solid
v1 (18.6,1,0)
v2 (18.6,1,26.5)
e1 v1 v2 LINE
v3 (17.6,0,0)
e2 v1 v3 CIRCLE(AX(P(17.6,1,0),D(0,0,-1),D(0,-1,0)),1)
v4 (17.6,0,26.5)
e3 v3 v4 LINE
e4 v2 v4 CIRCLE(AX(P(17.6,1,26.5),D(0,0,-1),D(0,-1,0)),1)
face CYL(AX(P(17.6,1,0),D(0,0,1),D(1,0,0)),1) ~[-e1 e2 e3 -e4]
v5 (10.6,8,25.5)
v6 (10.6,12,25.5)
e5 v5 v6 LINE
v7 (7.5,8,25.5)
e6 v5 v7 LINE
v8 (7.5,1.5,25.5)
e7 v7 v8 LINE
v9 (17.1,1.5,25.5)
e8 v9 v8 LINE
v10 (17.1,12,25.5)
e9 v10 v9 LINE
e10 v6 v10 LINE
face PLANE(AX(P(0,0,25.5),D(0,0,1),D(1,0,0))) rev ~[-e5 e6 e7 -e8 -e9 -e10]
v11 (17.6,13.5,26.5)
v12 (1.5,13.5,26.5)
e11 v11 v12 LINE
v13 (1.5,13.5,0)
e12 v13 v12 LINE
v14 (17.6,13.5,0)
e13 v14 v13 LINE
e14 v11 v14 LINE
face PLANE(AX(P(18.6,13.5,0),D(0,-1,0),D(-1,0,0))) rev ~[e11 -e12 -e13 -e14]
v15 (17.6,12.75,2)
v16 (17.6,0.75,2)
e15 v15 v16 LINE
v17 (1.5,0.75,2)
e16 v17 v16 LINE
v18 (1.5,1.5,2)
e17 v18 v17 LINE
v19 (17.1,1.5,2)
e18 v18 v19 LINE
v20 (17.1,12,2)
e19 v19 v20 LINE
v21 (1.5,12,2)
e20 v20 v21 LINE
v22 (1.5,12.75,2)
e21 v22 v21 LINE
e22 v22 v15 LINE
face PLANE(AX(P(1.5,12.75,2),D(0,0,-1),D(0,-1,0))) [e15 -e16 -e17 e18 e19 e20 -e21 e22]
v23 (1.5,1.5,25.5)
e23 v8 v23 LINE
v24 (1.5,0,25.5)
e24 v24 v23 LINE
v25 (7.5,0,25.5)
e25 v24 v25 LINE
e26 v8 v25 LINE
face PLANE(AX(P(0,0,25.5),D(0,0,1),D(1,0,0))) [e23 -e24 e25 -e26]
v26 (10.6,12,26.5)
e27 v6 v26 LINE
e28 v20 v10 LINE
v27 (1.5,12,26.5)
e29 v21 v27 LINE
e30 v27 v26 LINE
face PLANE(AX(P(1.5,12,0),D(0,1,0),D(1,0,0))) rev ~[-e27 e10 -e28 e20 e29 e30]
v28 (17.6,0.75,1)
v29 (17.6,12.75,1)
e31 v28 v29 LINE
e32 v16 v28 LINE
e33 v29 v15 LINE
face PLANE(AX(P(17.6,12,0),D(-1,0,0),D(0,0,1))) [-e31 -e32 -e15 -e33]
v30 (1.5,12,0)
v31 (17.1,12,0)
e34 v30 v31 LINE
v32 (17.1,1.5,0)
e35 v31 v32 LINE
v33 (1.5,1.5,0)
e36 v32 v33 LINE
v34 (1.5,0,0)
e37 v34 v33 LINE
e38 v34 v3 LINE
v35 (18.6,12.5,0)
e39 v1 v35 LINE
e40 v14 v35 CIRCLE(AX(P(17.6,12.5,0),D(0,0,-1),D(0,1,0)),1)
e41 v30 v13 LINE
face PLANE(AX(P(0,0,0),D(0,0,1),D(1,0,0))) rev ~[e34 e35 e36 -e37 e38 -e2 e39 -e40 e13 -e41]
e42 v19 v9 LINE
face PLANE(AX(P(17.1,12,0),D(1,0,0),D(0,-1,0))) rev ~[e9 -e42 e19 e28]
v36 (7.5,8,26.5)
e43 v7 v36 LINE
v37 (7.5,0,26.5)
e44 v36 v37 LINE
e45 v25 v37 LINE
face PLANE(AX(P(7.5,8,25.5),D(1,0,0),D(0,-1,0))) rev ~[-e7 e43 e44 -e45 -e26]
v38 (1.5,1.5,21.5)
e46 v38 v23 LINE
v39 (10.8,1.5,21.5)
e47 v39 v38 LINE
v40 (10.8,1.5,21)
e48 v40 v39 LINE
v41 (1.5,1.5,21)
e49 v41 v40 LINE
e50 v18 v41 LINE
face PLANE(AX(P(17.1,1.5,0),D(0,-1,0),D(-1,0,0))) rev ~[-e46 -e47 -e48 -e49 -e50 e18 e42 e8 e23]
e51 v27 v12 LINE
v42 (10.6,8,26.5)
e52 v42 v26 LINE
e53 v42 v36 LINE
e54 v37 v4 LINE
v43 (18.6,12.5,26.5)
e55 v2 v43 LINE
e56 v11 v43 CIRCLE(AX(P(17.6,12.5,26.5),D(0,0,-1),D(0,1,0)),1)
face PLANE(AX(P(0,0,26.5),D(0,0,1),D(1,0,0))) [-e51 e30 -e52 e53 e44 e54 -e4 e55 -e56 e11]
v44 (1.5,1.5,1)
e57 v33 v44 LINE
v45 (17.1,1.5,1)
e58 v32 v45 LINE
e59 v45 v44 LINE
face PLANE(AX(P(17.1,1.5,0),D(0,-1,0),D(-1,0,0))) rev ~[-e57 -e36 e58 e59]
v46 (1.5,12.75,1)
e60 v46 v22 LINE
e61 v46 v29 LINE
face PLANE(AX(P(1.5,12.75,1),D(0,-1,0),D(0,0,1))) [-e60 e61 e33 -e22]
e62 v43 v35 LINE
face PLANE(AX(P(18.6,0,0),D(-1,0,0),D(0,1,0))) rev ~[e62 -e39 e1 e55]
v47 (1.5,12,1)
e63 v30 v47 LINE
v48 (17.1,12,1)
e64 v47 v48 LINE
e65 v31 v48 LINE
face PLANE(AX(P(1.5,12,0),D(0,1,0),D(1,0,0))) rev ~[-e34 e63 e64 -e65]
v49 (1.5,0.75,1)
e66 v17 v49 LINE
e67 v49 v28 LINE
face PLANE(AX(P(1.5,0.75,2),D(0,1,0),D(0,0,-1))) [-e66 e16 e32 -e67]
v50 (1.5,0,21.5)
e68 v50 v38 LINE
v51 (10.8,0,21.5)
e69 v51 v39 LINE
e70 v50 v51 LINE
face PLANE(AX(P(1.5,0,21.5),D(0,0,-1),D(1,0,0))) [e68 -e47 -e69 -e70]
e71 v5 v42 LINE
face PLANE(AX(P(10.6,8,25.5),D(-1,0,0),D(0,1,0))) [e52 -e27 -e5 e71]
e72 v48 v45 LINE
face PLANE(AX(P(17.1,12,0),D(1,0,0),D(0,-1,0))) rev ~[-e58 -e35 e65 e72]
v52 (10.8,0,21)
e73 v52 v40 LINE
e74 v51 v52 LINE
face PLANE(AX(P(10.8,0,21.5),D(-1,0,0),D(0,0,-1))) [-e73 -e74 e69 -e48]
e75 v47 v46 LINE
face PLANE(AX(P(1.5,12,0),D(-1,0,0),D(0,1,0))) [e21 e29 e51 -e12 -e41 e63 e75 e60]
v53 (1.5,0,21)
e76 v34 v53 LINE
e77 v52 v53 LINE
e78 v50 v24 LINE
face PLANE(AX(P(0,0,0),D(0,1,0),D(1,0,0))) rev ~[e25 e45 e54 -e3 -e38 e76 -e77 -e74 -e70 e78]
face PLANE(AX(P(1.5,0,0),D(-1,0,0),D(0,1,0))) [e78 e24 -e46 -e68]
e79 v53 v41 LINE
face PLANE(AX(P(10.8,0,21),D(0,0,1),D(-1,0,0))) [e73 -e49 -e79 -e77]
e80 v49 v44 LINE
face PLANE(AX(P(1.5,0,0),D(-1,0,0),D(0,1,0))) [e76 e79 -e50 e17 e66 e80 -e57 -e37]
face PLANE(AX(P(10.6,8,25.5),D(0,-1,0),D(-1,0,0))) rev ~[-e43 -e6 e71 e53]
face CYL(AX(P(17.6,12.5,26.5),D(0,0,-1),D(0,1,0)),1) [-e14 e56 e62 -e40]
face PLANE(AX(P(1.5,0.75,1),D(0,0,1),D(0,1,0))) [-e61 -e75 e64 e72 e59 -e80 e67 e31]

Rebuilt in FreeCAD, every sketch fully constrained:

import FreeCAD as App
import Part
import Sketcher

V = App.Vector


def edges_at(feature, points):
    """Names of the edges that pass closest to the given points."""
    edges = feature.Shape.Edges
    near = lambda p: min(range(len(edges)), key=lambda i: edges[i].distToShape(Part.Vertex(*p))[0])
    return sorted({f"Edge{near(p) + 1}" for p in points})


def add_polygon(sketch, points):
    """Adds a closed chain of lines whose ends are joined by coincident constraints."""
    first, n = sketch.GeometryCount, len(points)
    for a, b in zip(points, points[1:] + points[:1]):
        sketch.addGeometry(Part.LineSegment(App.Vector(*a, 0), App.Vector(*b, 0)), False)
    for i in range(n):
        sketch.addConstraint(Sketcher.Constraint("Coincident", first + i, 2, first + (i + 1) % n, 1))

doc = App.newDocument("Part")
params = doc.addObject("Spreadsheet::Sheet", "Params")
for row, (alias, value) in enumerate([
    ("sketch1_width", "18.6 mm"),
    ("sketch1_height", "13.5 mm"),
    ("pad1_length", "25.5 mm"),
    ("sketch2_height", "8 mm"),
    ("sketch2_height2", "4 mm"),
    ("sketch2_width", "11.1 mm"),
    ("sketch2_width2", "18.6 mm"),
    ("sketch2_height3", "13.5 mm"),
    ("pad2_length", "1 mm"),
    ("sketch3_width", "1.5 mm"),
    ("sketch3_height", "13.5 mm"),
    ("pocket1_length", "26.5 mm"),
    ("sketch4_width", "9.3 mm"),
    ("sketch4_height", "0.5 mm"),
    ("fillet_radius", "1 mm"),
    ("sketch5_height", "1 mm"),
    ("sketch5_width", "12 mm"),
    ("pocket3_length", "16.1 mm"),
], start=1):
    params.set(f"A{row}", alias)
    params.set(f"B{row}", "=" + value)
    params.setAlias(f"B{row}", alias)

body = doc.addObject("PartDesign::Body", "Body")

# Sketch on XY plane
sketch1 = body.newObject("Sketcher::SketchObject", "Sketch")
sketch1.AttachmentSupport = (doc.getObject("XY_Plane"), [""])
sketch1.MapMode = "FlatFace"
add_polygon(sketch1, [(0, 14), (0, 0), (19, 0), (19, 14)])  # lines 0-3
add_polygon(sketch1, [(2, 2), (2, 12), (17, 12), (17, 2)])  # lines 4-7
sketch1.addConstraint([
    Sketcher.Constraint("Vertical", 0),
    Sketcher.Constraint("Horizontal", 1),
    Sketcher.Constraint("Vertical", 2),
    Sketcher.Constraint("Horizontal", 3),
    Sketcher.Constraint("Vertical", 4),
    Sketcher.Constraint("Horizontal", 5),
    Sketcher.Constraint("Vertical", 6),
    Sketcher.Constraint("Horizontal", 7),
    Sketcher.Constraint("Coincident", 0, 2, -1, 1),
    Sketcher.Constraint("DistanceX", 1, 1, 1, 2, 18.6),
    Sketcher.Constraint("DistanceY", 0, 2, 0, 1, 13.5),
    Sketcher.Constraint("DistanceX", -1, 1, 4, 2, 1.5),
    Sketcher.Constraint("DistanceY", -1, 1, 6, 2, 1.5),
    Sketcher.Constraint("DistanceY", 4, 2, 3, 2, 1.5),
    Sketcher.Constraint("DistanceX", 5, 2, 2, 2, 1.5),
])
sketch1.setExpression("Constraints[17]", "Params.sketch1_width")
sketch1.setExpression("Constraints[18]", "Params.sketch1_height")
pad1 = body.newObject("PartDesign::Pad", "Pad")
pad1.Profile = sketch1
pad1.setExpression("Length", "Params.pad1_length")

# Sketch on XY plane
sketch2 = body.newObject("Sketcher::SketchObject", "Sketch001")
sketch2.AttachmentSupport = (doc.getObject("XY_Plane"), [""])
sketch2.MapMode = "FlatFace"
sketch2.AttachmentOffset = App.Placement(V(0, 0, 25.5), App.Rotation())
add_polygon(sketch2, [(7.5, 8), (7.5, 0), (18.6, 0), (18.6, 13.5), (0, 13.5), (0, 12), (10.6, 12), (10.6, 8)])  # lines 0-7
sketch2.addConstraint([
    Sketcher.Constraint("Vertical", 0),
    Sketcher.Constraint("Horizontal", 1),
    Sketcher.Constraint("Vertical", 2),
    Sketcher.Constraint("Horizontal", 3),
    Sketcher.Constraint("Vertical", 4),
    Sketcher.Constraint("Horizontal", 5),
    Sketcher.Constraint("Vertical", 6),
    Sketcher.Constraint("Horizontal", 7),
    Sketcher.Constraint("PointOnObject", 0, 2, -1),
    Sketcher.Constraint("PointOnObject", 3, 2, -2),
    Sketcher.Constraint("DistanceY", 0, 2, 0, 1, 8.0),
    Sketcher.Constraint("DistanceX", 5, 2, 2, 2, 8.0),
    Sketcher.Constraint("DistanceY", 6, 2, 6, 1, 4.0),
    Sketcher.Constraint("DistanceX", 1, 1, 1, 2, 11.1),
    Sketcher.Constraint("DistanceX", 3, 2, 3, 1, 18.6),
    Sketcher.Constraint("DistanceY", 2, 1, 2, 2, 13.5),
])
sketch2.setExpression("Constraints[18]", "Params.sketch2_height")
sketch2.setExpression("Constraints[20]", "Params.sketch2_height2")
sketch2.setExpression("Constraints[21]", "Params.sketch2_width")
sketch2.setExpression("Constraints[22]", "Params.sketch2_width2")
sketch2.setExpression("Constraints[23]", "Params.sketch2_height3")
pad2 = body.newObject("PartDesign::Pad", "Pad001")
pad2.Profile = sketch2
pad2.setExpression("Length", "Params.pad2_length")

# Sketch on XY plane
sketch3 = body.newObject("Sketcher::SketchObject", "Sketch002")
sketch3.AttachmentSupport = (doc.getObject("XY_Plane"), [""])
sketch3.MapMode = "FlatFace"
add_polygon(sketch3, [(1.5, 13.5), (1.5, 0), (0, 0), (0, 13.5)])  # lines 0-3
sketch3.addConstraint([
    Sketcher.Constraint("Vertical", 0),
    Sketcher.Constraint("Horizontal", 1),
    Sketcher.Constraint("Vertical", 2),
    Sketcher.Constraint("Horizontal", 3),
    Sketcher.Constraint("Coincident", 1, 2, -1, 1),
    Sketcher.Constraint("DistanceX", 1, 2, 1, 1, 1.5),
    Sketcher.Constraint("DistanceY", 0, 2, 0, 1, 13.5),
])
sketch3.setExpression("Constraints[9]", "Params.sketch3_width")
sketch3.setExpression("Constraints[10]", "Params.sketch3_height")
pocket1 = body.newObject("PartDesign::Pocket", "Pocket")
pocket1.Profile = sketch3
pocket1.setExpression("Length", "Params.pocket1_length")
pocket1.Reversed = True

# Sketch on XZ plane
sketch4 = body.newObject("Sketcher::SketchObject", "Sketch003")
sketch4.AttachmentSupport = (doc.getObject("XZ_Plane"), [""])
sketch4.MapMode = "FlatFace"
add_polygon(sketch4, [(1.5, 21), (10.8, 21), (10.8, 21.5), (1.5, 21.5)])  # lines 0-3
sketch4.addConstraint([
    Sketcher.Constraint("Horizontal", 0),
    Sketcher.Constraint("Vertical", 1),
    Sketcher.Constraint("Horizontal", 2),
    Sketcher.Constraint("Vertical", 3),
    Sketcher.Constraint("DistanceX", 0, 1, 0, 2, 9.3),
    Sketcher.Constraint("DistanceY", 1, 1, 1, 2, 0.5),
    Sketcher.Constraint("DistanceY", -1, 1, 0, 2, 21.0),
    Sketcher.Constraint("DistanceX", -1, 1, 0, 2, 10.8),
])
sketch4.setExpression("Constraints[8]", "Params.sketch4_width")
sketch4.setExpression("Constraints[9]", "Params.sketch4_height")
pocket2 = body.newObject("PartDesign::Pocket", "Pocket001")
pocket2.Profile = sketch4
pocket2.Type = "UpToFirst"
doc.recompute()

fillet = body.newObject("PartDesign::Fillet", "Fillet")
fillet.Base = (pocket2, edges_at(pocket2, [(18.6, 13.5, 13.25), (18.6, 0, 13.25)]))
fillet.setExpression("Radius", "Params.fillet_radius")

# Sketch on YZ plane
sketch5 = body.newObject("Sketcher::SketchObject", "Sketch004")
sketch5.AttachmentSupport = (doc.getObject("YZ_Plane"), [""])
sketch5.MapMode = "FlatFace"
sketch5.AttachmentOffset = App.Placement(V(0, 0, 1.5), App.Rotation())
add_polygon(sketch5, [(12.8, 2), (12.8, 1), (0.8, 1), (0.8, 2)])  # lines 0-3
sketch5.addConstraint([
    Sketcher.Constraint("Vertical", 0),
    Sketcher.Constraint("Horizontal", 1),
    Sketcher.Constraint("Vertical", 2),
    Sketcher.Constraint("Horizontal", 3),
    Sketcher.Constraint("DistanceY", 0, 2, 0, 1, 1.0),
    Sketcher.Constraint("DistanceY", -1, 1, 0, 2, 1.0),
    Sketcher.Constraint("DistanceX", 1, 2, 1, 1, 12.0),
    Sketcher.Constraint("DistanceX", -1, 1, 1, 2, 0.75),
])
sketch5.setExpression("Constraints[8]", "Params.sketch5_height")
sketch5.setExpression("Constraints[10]", "Params.sketch5_width")
pocket3 = body.newObject("PartDesign::Pocket", "Pocket002")
pocket3.Profile = sketch5
pocket3.setExpression("Length", "Params.pocket3_length")
pocket3.Reversed = True

doc.recompute()
